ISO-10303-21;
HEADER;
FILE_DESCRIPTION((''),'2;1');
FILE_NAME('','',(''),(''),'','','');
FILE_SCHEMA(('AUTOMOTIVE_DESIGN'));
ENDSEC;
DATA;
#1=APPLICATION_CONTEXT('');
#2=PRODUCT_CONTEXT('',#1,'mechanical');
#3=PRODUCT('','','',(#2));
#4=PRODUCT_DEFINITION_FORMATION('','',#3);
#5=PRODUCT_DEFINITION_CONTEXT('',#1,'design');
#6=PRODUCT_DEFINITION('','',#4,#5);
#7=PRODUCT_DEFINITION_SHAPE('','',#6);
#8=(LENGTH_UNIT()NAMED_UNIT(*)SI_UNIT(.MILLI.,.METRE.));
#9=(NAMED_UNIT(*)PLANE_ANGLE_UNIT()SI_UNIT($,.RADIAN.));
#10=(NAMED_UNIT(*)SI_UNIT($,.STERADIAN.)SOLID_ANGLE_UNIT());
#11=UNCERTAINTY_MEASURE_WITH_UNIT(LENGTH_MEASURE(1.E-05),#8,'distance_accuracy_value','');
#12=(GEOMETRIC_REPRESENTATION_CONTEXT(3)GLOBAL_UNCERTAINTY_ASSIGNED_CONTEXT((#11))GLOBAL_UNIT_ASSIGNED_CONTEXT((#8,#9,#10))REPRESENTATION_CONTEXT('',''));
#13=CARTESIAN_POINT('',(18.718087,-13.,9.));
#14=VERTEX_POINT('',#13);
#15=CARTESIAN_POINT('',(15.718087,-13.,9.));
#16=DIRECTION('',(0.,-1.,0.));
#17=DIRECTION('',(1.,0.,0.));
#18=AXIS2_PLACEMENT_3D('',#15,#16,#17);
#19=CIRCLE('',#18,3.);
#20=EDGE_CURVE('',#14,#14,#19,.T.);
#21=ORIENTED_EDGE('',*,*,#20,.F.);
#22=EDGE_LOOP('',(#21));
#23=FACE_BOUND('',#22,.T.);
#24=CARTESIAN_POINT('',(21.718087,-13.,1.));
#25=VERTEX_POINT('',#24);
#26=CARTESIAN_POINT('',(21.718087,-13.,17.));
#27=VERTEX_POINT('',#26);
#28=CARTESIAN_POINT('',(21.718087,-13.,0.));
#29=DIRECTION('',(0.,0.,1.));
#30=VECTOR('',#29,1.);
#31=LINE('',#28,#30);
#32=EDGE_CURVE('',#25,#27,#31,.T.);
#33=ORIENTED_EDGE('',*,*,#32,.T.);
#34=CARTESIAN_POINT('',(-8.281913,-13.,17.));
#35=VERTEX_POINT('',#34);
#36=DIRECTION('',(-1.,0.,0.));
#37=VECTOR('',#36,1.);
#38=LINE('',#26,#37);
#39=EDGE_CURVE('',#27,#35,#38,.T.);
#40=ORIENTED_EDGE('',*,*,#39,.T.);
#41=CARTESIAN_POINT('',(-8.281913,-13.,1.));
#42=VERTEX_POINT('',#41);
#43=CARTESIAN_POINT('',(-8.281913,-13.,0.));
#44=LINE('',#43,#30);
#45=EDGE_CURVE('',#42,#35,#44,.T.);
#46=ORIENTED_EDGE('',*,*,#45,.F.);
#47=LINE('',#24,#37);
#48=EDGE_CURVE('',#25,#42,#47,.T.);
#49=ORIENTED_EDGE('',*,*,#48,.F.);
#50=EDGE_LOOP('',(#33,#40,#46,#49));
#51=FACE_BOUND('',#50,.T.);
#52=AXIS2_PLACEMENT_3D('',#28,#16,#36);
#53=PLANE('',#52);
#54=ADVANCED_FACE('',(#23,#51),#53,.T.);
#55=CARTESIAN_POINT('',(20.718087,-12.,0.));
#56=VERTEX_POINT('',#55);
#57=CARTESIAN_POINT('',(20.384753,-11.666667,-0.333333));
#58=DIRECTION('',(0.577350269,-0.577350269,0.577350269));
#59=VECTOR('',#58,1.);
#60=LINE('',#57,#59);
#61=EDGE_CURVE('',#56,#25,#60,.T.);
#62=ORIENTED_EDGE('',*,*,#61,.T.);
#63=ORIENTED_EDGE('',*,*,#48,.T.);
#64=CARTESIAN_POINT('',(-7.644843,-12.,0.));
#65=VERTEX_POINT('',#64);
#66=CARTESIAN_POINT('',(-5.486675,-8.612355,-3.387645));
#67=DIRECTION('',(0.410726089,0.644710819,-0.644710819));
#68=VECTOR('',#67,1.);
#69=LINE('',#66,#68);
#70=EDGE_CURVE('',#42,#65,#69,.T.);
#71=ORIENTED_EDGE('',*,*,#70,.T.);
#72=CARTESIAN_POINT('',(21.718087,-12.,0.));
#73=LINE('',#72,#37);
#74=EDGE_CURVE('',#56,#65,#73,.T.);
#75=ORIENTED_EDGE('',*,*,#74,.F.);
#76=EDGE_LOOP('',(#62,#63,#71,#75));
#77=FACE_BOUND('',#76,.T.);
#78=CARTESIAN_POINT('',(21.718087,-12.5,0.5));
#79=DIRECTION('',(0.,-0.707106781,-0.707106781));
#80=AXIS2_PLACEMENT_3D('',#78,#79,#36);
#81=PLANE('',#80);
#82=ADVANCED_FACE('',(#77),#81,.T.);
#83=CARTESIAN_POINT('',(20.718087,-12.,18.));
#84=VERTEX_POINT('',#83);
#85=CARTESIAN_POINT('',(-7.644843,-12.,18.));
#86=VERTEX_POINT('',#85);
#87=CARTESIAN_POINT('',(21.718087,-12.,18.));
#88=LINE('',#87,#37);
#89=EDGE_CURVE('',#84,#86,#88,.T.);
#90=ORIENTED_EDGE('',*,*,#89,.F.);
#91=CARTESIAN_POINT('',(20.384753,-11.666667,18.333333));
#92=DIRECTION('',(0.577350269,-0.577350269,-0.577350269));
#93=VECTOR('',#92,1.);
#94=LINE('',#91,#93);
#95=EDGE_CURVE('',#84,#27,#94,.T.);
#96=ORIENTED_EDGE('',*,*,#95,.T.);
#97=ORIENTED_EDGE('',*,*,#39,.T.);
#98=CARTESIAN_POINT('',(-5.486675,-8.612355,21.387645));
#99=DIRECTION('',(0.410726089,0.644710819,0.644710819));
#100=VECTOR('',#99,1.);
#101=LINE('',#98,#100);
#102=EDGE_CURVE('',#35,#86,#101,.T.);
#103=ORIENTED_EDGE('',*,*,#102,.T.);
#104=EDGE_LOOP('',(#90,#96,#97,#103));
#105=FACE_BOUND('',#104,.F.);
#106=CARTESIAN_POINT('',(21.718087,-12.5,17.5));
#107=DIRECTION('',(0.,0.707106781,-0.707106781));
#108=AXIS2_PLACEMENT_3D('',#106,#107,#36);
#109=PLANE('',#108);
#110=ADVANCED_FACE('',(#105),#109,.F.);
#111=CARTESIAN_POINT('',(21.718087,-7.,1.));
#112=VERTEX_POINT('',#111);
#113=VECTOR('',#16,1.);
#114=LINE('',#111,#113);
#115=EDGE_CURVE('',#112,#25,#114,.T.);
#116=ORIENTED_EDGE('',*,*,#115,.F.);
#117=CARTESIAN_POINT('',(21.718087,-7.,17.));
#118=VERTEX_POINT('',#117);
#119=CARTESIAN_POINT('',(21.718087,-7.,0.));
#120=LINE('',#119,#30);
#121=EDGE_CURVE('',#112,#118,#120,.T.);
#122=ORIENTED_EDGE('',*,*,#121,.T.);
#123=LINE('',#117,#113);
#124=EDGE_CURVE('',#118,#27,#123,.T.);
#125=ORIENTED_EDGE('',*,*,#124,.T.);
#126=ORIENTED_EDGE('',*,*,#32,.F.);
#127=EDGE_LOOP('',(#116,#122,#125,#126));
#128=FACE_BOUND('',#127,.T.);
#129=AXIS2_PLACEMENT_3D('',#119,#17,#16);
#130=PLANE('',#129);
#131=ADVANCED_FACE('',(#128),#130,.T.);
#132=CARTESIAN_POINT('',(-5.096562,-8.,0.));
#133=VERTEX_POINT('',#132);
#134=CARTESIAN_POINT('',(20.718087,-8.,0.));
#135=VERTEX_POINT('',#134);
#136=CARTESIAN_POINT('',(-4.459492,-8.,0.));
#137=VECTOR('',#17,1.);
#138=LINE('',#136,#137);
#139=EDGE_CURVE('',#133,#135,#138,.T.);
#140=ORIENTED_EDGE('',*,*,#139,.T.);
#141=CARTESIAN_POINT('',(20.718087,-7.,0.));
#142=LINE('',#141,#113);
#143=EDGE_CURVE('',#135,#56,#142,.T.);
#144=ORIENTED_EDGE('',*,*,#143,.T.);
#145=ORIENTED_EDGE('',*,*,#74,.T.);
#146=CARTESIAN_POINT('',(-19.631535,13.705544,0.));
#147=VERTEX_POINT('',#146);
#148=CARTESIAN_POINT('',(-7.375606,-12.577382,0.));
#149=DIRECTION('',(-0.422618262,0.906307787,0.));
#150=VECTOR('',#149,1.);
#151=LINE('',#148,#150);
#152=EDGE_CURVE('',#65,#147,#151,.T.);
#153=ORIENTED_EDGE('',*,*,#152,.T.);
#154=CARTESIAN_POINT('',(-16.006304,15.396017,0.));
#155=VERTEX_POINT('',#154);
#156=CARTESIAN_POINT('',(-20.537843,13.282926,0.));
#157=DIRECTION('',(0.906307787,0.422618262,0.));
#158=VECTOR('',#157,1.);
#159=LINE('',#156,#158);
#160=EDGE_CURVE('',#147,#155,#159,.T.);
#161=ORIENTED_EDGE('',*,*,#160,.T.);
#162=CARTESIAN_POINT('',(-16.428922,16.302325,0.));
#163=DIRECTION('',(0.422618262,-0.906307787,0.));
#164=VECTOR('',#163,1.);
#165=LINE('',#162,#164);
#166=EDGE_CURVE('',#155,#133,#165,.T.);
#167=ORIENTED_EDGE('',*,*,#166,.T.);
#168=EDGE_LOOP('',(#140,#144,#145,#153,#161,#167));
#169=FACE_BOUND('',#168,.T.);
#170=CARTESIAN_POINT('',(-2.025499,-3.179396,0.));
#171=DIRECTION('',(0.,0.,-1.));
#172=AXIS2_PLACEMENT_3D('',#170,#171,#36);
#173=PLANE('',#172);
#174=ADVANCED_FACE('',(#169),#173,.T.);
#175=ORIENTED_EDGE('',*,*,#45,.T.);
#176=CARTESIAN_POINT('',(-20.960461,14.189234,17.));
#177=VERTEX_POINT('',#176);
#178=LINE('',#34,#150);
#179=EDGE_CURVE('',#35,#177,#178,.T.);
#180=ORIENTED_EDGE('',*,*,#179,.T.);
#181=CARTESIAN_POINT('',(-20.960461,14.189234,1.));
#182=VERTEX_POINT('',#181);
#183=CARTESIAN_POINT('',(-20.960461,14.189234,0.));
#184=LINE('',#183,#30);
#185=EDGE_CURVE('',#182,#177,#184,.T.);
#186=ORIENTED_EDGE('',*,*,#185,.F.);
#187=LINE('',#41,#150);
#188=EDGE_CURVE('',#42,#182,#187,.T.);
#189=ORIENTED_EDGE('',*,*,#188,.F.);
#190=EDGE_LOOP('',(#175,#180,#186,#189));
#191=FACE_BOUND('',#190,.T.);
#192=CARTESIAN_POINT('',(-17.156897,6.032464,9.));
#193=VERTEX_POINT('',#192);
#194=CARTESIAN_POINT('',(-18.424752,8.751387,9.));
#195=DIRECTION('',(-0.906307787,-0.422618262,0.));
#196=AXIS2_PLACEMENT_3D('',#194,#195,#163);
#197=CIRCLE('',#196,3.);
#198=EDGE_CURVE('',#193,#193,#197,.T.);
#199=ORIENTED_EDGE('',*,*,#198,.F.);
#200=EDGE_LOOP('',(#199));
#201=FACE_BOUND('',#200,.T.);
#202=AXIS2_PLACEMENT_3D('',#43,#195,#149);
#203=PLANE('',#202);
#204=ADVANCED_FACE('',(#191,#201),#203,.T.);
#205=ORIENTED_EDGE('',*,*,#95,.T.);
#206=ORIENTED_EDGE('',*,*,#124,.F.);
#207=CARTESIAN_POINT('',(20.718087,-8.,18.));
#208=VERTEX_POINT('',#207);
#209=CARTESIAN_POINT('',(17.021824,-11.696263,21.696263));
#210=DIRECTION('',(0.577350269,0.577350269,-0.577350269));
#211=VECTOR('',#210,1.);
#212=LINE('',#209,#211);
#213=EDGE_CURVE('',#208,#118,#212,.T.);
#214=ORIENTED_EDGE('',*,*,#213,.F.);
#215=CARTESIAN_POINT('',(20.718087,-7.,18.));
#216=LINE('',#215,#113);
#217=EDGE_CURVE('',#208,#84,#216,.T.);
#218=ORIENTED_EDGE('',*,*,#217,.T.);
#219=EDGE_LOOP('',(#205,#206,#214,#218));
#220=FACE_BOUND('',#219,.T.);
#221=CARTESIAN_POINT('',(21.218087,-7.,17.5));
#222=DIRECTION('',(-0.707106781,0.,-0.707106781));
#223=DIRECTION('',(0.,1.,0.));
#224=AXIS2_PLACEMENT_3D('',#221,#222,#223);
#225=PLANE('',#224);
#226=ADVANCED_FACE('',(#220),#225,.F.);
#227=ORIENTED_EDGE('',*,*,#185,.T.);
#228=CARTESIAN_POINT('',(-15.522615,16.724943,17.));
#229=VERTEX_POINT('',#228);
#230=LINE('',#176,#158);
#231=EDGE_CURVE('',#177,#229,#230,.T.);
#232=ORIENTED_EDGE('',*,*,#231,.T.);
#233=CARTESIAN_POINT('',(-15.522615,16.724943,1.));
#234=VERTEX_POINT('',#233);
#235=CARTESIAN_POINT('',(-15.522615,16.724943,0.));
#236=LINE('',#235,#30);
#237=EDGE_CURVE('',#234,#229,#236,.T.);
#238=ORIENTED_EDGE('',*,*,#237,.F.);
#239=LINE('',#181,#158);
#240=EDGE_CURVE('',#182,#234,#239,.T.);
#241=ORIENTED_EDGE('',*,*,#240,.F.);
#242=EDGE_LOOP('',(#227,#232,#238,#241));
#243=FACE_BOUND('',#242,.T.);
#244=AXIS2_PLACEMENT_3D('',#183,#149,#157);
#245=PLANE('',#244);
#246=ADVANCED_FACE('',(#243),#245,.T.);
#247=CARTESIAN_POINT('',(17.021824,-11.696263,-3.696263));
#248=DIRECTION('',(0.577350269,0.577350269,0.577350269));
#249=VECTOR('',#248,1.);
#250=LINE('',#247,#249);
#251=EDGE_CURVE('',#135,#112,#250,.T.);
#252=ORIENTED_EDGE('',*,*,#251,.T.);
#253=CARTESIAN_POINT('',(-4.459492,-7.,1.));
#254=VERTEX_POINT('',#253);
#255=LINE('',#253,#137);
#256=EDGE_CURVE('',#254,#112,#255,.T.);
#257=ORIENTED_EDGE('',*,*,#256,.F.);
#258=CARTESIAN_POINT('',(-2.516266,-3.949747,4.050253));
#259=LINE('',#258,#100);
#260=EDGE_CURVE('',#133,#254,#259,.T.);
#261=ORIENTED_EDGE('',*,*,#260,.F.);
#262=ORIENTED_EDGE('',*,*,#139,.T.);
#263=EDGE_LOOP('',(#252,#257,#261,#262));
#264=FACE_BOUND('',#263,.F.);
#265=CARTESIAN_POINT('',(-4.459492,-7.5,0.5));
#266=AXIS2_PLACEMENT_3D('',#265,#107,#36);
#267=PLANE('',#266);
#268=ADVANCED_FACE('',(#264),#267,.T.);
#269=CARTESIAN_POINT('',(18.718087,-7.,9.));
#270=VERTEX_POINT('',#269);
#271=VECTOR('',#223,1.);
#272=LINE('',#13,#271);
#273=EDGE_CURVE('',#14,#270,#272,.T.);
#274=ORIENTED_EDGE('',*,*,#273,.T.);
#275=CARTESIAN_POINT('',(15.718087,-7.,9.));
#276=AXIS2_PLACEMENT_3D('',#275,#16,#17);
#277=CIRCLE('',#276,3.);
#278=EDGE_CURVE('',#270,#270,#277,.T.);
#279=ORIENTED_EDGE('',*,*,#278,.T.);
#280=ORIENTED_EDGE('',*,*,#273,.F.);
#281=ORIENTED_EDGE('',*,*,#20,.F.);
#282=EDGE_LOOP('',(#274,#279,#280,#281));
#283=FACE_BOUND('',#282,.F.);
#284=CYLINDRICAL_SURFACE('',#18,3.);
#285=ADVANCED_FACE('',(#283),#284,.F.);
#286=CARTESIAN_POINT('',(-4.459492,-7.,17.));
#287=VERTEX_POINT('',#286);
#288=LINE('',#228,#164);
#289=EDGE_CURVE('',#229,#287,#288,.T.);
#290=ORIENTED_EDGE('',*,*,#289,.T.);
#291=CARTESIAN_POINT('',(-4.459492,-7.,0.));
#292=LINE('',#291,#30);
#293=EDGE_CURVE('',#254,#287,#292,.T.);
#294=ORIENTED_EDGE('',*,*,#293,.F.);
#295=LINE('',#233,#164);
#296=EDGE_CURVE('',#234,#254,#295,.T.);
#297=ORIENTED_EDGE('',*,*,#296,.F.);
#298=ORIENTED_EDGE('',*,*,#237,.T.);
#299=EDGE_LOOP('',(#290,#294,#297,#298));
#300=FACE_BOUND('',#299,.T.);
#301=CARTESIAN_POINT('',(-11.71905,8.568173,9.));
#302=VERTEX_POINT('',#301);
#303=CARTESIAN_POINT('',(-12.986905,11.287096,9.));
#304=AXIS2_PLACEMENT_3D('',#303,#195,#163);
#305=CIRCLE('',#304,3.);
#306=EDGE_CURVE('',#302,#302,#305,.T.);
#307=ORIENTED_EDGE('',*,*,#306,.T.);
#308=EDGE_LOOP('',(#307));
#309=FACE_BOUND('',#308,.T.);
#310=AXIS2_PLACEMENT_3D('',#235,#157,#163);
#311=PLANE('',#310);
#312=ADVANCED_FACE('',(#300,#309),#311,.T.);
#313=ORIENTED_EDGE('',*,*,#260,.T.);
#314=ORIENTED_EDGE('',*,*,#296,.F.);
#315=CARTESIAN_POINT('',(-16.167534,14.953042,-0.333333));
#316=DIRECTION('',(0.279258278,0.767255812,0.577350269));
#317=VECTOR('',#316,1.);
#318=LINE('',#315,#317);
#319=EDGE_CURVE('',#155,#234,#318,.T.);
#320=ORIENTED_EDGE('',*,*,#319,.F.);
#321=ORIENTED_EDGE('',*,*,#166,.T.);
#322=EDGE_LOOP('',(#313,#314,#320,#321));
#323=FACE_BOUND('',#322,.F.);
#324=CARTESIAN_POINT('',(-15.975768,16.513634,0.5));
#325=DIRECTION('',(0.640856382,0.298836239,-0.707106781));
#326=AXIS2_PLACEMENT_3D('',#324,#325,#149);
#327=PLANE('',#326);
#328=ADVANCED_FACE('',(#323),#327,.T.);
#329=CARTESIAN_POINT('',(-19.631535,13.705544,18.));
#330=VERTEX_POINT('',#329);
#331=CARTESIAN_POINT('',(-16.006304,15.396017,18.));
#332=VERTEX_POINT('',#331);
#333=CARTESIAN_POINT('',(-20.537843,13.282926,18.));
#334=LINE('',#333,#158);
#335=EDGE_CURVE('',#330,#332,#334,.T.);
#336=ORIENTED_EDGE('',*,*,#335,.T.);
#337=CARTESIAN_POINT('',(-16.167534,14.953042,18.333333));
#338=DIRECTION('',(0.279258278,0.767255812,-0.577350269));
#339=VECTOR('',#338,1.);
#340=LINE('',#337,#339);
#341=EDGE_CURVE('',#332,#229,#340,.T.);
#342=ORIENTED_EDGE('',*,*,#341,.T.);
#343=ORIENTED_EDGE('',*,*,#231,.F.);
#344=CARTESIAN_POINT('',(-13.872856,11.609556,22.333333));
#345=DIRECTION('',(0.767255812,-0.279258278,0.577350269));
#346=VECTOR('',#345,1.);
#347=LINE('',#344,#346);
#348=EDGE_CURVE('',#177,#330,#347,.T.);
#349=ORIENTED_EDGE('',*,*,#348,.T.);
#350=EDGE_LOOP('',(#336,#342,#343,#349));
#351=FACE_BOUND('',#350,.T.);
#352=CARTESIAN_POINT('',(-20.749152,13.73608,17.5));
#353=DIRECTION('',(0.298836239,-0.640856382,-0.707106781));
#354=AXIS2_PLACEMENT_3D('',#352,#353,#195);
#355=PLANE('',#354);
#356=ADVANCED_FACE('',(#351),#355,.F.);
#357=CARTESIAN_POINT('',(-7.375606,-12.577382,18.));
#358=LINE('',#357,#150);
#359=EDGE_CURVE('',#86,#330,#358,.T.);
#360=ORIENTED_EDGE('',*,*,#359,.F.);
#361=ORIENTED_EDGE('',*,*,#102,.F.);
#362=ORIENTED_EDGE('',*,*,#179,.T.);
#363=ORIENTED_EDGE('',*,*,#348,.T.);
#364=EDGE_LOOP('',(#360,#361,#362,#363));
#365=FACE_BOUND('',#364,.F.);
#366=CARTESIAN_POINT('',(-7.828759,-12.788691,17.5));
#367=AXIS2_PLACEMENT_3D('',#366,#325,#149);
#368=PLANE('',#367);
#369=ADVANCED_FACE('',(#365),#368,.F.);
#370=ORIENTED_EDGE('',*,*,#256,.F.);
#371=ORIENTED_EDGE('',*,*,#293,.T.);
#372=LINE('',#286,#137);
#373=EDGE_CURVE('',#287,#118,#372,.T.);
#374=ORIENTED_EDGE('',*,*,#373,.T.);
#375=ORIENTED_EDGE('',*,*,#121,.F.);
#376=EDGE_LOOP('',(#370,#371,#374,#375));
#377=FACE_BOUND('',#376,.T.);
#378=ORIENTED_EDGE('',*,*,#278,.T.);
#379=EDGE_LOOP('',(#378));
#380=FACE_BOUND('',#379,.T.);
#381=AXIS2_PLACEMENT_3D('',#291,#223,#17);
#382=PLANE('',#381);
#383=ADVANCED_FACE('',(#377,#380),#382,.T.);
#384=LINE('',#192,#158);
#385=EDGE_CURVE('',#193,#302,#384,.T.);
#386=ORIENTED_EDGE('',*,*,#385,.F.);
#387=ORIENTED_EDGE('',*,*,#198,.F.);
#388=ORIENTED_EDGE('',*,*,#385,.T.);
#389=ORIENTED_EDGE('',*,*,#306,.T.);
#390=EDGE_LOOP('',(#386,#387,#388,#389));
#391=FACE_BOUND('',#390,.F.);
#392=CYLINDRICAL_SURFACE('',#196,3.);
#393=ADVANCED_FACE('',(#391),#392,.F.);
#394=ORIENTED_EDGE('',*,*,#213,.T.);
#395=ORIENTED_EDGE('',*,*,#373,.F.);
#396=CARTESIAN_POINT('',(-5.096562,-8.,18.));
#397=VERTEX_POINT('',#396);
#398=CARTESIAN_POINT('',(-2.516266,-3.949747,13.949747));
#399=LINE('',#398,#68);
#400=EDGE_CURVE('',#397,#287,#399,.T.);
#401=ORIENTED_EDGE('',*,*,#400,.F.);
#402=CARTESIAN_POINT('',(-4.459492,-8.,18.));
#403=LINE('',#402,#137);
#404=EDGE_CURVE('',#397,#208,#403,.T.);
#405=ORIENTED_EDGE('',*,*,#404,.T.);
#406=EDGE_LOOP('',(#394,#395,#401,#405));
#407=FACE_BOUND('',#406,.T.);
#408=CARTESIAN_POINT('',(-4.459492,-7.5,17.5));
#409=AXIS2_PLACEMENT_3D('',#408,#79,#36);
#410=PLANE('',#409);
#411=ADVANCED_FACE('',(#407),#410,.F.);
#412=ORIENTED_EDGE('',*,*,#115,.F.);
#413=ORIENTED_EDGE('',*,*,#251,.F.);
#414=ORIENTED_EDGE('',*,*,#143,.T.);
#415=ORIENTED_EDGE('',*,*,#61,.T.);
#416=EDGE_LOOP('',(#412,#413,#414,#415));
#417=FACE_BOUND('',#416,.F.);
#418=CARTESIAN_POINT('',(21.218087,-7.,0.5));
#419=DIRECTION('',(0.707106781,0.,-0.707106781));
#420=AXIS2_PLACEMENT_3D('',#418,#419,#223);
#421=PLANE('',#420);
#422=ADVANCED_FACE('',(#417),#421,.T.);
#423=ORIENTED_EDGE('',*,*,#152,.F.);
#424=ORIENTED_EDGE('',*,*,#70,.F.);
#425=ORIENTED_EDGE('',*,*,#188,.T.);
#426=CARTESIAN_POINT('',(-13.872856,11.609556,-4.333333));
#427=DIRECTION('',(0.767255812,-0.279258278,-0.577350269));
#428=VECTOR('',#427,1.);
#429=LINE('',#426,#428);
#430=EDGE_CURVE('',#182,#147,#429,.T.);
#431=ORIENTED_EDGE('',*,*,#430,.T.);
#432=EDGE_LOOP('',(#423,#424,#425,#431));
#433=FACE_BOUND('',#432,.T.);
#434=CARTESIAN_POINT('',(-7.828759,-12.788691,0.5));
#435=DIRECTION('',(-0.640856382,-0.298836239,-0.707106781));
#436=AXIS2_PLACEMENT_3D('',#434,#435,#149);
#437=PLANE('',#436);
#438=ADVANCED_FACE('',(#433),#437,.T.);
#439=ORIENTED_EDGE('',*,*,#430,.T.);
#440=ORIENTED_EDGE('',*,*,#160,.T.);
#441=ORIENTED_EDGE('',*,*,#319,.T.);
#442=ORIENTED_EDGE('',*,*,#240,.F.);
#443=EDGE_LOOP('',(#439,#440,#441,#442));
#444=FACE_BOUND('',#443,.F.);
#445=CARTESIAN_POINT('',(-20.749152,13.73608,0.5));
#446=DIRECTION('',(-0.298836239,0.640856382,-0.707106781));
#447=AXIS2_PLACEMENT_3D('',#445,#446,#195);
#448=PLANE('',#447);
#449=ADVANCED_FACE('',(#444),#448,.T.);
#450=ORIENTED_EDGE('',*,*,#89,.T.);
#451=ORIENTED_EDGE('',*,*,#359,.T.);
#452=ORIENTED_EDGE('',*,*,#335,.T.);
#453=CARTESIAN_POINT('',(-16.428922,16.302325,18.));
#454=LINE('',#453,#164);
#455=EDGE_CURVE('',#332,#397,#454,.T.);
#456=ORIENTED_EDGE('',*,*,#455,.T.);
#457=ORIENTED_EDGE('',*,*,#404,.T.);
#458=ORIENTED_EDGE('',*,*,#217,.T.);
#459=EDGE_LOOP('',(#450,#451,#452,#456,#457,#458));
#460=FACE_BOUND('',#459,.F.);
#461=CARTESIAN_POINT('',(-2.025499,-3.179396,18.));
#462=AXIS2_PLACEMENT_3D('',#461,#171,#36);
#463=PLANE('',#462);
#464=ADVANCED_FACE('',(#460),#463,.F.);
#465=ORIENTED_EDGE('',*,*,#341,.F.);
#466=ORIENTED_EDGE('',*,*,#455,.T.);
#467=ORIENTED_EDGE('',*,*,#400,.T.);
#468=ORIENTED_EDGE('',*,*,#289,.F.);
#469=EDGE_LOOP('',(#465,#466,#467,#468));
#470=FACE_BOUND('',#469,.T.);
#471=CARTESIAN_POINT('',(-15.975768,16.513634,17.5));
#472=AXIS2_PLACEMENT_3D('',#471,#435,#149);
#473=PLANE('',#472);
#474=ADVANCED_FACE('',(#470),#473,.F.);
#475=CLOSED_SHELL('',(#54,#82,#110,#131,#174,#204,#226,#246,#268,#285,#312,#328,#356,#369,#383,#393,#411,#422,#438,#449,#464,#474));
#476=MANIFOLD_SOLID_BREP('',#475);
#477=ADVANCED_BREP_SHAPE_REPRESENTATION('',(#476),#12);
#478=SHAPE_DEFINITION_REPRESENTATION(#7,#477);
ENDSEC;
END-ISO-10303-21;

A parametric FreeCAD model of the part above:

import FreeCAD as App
import Part
import Sketcher

V = App.Vector
Q = App.Units.Quantity


def edges_at(feature, points):
    """Names of the edges that pass closest to the given points."""
    edges = feature.Shape.Edges
    near = lambda p: min(range(len(edges)), key=lambda i: edges[i].distToShape(Part.Vertex(*p))[0])
    return sorted({f"Edge{near(p) + 1}" for p in points})


def add_polygon(sketch, points):
    """Adds a closed chain of lines whose ends are joined by coincident constraints."""
    first, n = sketch.GeometryCount, len(points)
    for a, b in zip(points, points[1:] + points[:1]):
        sketch.addGeometry(Part.LineSegment(App.Vector(*a, 0), App.Vector(*b, 0)), False)
    for i in range(n):
        sketch.addConstraint(Sketcher.Constraint("Coincident", first + i, 2, first + (i + 1) % n, 1))

doc = App.newDocument("Part")
body = doc.addObject("PartDesign::Body", "Body")

sketch1 = body.newObject("Sketcher::SketchObject", "Sketch")
sketch1.AttachmentSupport = (doc.getObject("XY_Plane"), [""])
sketch1.MapMode = "FlatFace"
add_polygon(sketch1, [(-21, 14), (-8, -13), (22, -13), (22, -7), (-4, -7), (-16, 17)])
sketch1.addConstraint(Sketcher.Constraint("Horizontal", 1))
sketch1.addConstraint(Sketcher.Constraint("Vertical", 2))
sketch1.addConstraint(Sketcher.Constraint("Horizontal", 3))
sketch1.addConstraint(Sketcher.Constraint("Parallel", 0, 4))
sketch1.addConstraint(Sketcher.Constraint("Perpendicular", 4, 5))
sketch1.addConstraint(Sketcher.Constraint("DistanceX", 1, 1, 1, 2, 30.0))
sketch1.addConstraint(Sketcher.Constraint("DistanceY", 2, 1, 2, 2, 6.0))
sketch1.addConstraint(Sketcher.Constraint("Angle", 0, Q("-65 deg")))
sketch1.addConstraint(Sketcher.Constraint("Distance", 0, 30.0))
sketch1.addConstraint(Sketcher.Constraint("Distance", 5, 6.0))
sketch1.addConstraint(Sketcher.Constraint("DistanceY", 0, 2, -1, 1, 13.0))
sketch1.addConstraint(Sketcher.Constraint("DistanceX", 3, 2, -1, 1, 4.459492))
pad1 = body.newObject("PartDesign::Pad", "Pad")
pad1.Profile = sketch1
pad1.Length = 18

sketch2 = body.newObject("Sketcher::SketchObject", "Sketch001")
sketch2.Placement = App.Placement(V(-11.782001, -5.494037, 0), App.Rotation(V(0.422618262, -0.906307787, 0), V(0, 0, 1), V(-0.906307787, -0.422618262, 0), "ZXY"))
sketch2.addGeometry(Part.Circle(V(-15.7, 9, 0), V(0, 0, 1), 3), False)
sketch2.addConstraint(Sketcher.Constraint("Diameter", 0, 6.0))
sketch2.addConstraint(Sketcher.Constraint("DistanceY", -1, 1, 0, 3, 9.0))
sketch2.addConstraint(Sketcher.Constraint("DistanceX", 0, 3, -1, 1, 15.718087))
pocket1 = body.newObject("PartDesign::Pocket", "Pocket")
pocket1.Profile = sketch2
pocket1.Type = "ThroughAll"

sketch3 = body.newObject("Sketcher::SketchObject", "Sketch002")
sketch3.AttachmentSupport = (doc.getObject("XZ_Plane"), [""])
sketch3.MapMode = "FlatFace"
sketch3.AttachmentOffset = App.Placement(V(0, 0, 13), App.Rotation())
sketch3.addGeometry(Part.Circle(V(15.7, 9, 0), V(0, 0, 1), 3), False)
sketch3.addConstraint(Sketcher.Constraint("Diameter", 0, 6.0))
sketch3.addConstraint(Sketcher.Constraint("DistanceY", -1, 1, 0, 3, 9.0))
sketch3.addConstraint(Sketcher.Constraint("DistanceX", -1, 1, 0, 3, 15.718087))
pocket2 = body.newObject("PartDesign::Pocket", "Pocket001")
pocket2.Profile = sketch3
pocket2.Type = "ThroughAll"
doc.recompute()

chamfer = body.newObject("PartDesign::Chamfer", "Chamfer")
chamfer.Base = (pocket2, edges_at(pocket2, [
    (-14.621, 0.595, 18),
    (-18.242, 15.457, 18),
    (-9.991, 4.862, 18),
    (8.629, -7, 18),
    (21.718, -10, 18),
    (6.718, -13, 18),
    (-14.621, 0.595, 0),
    (-18.242, 15.457, 0),
    (-9.991, 4.862, 0),
    (8.629, -7, 0),
    (21.718, -10, 0),
    (6.718, -13, 0),
]))
chamfer.Size = 1

doc.recompute()
